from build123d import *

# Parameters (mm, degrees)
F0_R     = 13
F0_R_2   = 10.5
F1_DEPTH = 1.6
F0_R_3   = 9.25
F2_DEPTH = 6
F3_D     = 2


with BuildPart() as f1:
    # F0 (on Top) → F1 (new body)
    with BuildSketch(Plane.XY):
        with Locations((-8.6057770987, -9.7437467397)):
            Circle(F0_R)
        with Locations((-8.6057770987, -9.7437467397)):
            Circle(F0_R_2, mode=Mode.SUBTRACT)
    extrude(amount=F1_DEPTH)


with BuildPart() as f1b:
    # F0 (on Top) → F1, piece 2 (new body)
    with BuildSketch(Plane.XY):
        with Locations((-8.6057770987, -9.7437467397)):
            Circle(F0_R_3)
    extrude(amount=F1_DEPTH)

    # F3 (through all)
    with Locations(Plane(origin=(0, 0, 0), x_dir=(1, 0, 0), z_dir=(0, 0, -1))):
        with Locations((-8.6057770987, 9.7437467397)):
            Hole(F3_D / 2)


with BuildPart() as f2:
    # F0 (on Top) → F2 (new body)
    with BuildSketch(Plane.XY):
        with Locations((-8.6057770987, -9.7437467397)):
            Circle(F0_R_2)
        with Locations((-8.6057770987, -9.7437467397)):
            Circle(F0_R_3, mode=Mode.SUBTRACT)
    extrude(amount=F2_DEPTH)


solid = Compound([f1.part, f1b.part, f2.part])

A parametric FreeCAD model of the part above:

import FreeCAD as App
import Part
import Sketcher

V = App.Vector

doc = App.newDocument("Part")
body = doc.addObject("PartDesign::Body", "Body")

# Sketch on XY plane
sketch1 = doc.addObject("Sketcher::SketchObject", "Sketch")
body.addObject(sketch1)
sketch1.AttachmentSupport = (doc.XY_Plane, [""])
sketch1.MapMode = "FlatFace"
sketch1.addGeometry([
    Part.Circle(V(-9, -10, 0), V(0, 0, 1), 13),
    Part.Circle(V(-9, -10, 0), V(0, 0, 1), 10),
], False)
sketch1.addConstraint([
    Sketcher.Constraint("Coincident", 1, 3, 0, 3),
    Sketcher.Constraint("Diameter", 0, 26.0),
    Sketcher.Constraint("Diameter", 1, 21.0),
    Sketcher.Constraint("DistanceX", 0, 3, -1, 1, 8.605777),
    Sketcher.Constraint("DistanceY", 0, 3, -1, 1, 9.743747),
])
pad1 = doc.addObject("PartDesign::Pad", "Pad")
body.addObject(pad1)
pad1.Profile = sketch1
pad1.Length = 1.6
body2 = doc.addObject("PartDesign::Body", "Body001")

# Sketch on XY plane
sketch2 = doc.addObject("Sketcher::SketchObject", "Sketch001")
body2.addObject(sketch2)
sketch2.AttachmentSupport = (doc.getObject("XY_Plane001"), [""])
sketch2.MapMode = "FlatFace"
sketch2.addGeometry(Part.Circle(V(-9, -10, 0), V(0, 0, 1), 9), False)
sketch2.addConstraint([
    Sketcher.Constraint("Diameter", 0, 18.5),
    Sketcher.Constraint("DistanceX", 0, 3, -1, 1, 8.605777),
    Sketcher.Constraint("DistanceY", 0, 3, -1, 1, 9.743747),
])
pad2 = doc.addObject("PartDesign::Pad", "Pad001")
body2.addObject(pad2)
pad2.Profile = sketch2
pad2.Length = 1.6

# Sketch on XY plane
sketch3 = doc.addObject("Sketcher::SketchObject", "Sketch002")
body2.addObject(sketch3)
sketch3.AttachmentSupport = (doc.getObject("XY_Plane001"), [""])
sketch3.MapMode = "FlatFace"
sketch3.addGeometry(Part.Circle(V(-8.6, -9.7, 0), V(0, 0, 1), 1), False)
sketch3.addConstraint([
    Sketcher.Constraint("Diameter", 0, 2.0),
    Sketcher.Constraint("DistanceX", 0, 3, -1, 1, 8.605777),
    Sketcher.Constraint("DistanceY", 0, 3, -1, 1, 9.743747),
])
doc.recompute()
hole = doc.addObject("PartDesign::Hole", "Hole")
body2.addObject(hole)
hole.Profile = sketch3
hole.ThreadType = "None"
hole.Diameter = 2
hole.DepthType = "ThroughAll"
hole.Reversed = True
body3 = doc.addObject("PartDesign::Body", "Body002")

# Sketch on XY plane
sketch4 = doc.addObject("Sketcher::SketchObject", "Sketch003")
body3.addObject(sketch4)
sketch4.AttachmentSupport = (doc.getObject("XY_Plane002"), [""])
sketch4.MapMode = "FlatFace"
sketch4.addGeometry([
    Part.Circle(V(-9, -10, 0), V(0, 0, 1), 10),
    Part.Circle(V(-9, -10, 0), V(0, 0, 1), 9),
], False)
sketch4.addConstraint([
    Sketcher.Constraint("Coincident", 1, 3, 0, 3),
    Sketcher.Constraint("Diameter", 0, 21.0),
    Sketcher.Constraint("Diameter", 1, 18.5),
    Sketcher.Constraint("DistanceX", 0, 3, -1, 1, 8.605777),
    Sketcher.Constraint("DistanceY", 0, 3, -1, 1, 9.743747),
])
pad3 = doc.addObject("PartDesign::Pad", "Pad002")
body3.addObject(pad3)
pad3.Profile = sketch4
pad3.Length = 6

doc.recompute()
